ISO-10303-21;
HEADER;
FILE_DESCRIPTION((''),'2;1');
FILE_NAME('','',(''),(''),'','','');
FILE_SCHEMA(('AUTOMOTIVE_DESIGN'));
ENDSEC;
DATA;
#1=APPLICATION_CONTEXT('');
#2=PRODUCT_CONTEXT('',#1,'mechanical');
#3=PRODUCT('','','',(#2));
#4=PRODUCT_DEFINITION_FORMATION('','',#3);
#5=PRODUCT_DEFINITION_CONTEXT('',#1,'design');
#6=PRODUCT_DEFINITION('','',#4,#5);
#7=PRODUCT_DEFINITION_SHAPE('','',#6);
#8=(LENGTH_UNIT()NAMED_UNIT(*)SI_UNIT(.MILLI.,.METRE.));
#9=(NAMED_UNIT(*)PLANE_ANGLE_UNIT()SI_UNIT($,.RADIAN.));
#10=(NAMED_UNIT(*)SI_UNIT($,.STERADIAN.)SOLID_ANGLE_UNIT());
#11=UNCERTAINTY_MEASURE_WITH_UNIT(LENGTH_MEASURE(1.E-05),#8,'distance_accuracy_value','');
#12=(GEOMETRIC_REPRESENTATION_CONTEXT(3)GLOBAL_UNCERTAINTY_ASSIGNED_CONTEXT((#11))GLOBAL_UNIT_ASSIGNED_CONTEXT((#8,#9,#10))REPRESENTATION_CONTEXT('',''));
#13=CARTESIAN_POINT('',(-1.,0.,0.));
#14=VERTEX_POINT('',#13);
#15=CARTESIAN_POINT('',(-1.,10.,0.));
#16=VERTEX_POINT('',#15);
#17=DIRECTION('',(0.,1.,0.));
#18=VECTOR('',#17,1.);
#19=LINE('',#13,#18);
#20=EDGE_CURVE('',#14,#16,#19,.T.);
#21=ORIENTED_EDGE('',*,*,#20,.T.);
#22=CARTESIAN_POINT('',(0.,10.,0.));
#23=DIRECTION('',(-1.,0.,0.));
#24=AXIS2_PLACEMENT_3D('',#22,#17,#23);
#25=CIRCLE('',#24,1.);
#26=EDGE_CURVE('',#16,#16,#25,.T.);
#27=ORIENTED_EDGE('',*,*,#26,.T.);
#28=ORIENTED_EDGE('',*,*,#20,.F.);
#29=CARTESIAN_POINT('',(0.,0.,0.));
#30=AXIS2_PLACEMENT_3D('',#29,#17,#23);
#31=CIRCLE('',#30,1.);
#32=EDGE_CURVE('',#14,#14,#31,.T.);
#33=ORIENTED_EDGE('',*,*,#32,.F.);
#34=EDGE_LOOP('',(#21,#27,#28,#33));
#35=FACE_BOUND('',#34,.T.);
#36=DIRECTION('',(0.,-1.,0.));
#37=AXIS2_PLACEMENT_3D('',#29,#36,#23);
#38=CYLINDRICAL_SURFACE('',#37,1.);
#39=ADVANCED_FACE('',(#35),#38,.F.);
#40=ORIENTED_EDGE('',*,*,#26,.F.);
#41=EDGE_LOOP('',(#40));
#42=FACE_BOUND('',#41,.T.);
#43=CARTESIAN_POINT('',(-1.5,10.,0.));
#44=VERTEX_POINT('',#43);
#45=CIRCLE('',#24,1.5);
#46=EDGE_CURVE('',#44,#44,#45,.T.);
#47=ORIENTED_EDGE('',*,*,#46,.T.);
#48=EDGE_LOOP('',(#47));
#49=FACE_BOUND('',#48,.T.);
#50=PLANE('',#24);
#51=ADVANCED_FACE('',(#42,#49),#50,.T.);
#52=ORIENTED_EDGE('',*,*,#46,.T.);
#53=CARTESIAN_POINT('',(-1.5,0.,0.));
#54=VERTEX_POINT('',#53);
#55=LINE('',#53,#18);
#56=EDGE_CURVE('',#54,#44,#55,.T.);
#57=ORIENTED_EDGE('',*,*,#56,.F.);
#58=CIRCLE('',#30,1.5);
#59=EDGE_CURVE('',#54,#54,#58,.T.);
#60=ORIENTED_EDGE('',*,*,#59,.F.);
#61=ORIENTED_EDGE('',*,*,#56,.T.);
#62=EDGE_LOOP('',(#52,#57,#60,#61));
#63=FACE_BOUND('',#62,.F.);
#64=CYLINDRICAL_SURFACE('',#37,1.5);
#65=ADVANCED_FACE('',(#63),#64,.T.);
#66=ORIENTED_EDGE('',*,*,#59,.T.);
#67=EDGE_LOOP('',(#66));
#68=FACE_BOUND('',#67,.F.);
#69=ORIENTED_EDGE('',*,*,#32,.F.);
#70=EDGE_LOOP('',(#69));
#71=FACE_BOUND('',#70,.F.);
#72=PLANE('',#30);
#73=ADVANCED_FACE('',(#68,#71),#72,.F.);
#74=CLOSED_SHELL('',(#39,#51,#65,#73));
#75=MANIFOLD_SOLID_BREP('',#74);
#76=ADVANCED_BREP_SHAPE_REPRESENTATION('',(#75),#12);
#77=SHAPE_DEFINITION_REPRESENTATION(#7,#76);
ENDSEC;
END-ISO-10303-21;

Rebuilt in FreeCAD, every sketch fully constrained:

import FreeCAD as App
import Part
import Sketcher

V = App.Vector

doc = App.newDocument("Part")
body = doc.addObject("PartDesign::Body", "Body")

sketch1 = doc.addObject("Sketcher::SketchObject", "Sketch")
body.addObject(sketch1)
sketch1.AttachmentSupport = (doc.XZ_Plane, [""])
sketch1.MapMode = "FlatFace"
sketch1.addGeometry([
    Part.Circle(V(0, 0, 0), V(0, 0, 1), 1.5),
    Part.Circle(V(0, 0, 0), V(0, 0, 1), 1),
], False)
sketch1.addConstraint([
    Sketcher.Constraint("Coincident", 0, 3, -1, 1),
    Sketcher.Constraint("Coincident", 1, 3, -1, 1),
    Sketcher.Constraint("Diameter", 0, 3.0),
    Sketcher.Constraint("Diameter", 1, 2.0),
])
pad1 = doc.addObject("PartDesign::Pad", "Pad")
body.addObject(pad1)
pad1.Profile = sketch1
pad1.Length = 10
pad1.Reversed = True

doc.recompute()
